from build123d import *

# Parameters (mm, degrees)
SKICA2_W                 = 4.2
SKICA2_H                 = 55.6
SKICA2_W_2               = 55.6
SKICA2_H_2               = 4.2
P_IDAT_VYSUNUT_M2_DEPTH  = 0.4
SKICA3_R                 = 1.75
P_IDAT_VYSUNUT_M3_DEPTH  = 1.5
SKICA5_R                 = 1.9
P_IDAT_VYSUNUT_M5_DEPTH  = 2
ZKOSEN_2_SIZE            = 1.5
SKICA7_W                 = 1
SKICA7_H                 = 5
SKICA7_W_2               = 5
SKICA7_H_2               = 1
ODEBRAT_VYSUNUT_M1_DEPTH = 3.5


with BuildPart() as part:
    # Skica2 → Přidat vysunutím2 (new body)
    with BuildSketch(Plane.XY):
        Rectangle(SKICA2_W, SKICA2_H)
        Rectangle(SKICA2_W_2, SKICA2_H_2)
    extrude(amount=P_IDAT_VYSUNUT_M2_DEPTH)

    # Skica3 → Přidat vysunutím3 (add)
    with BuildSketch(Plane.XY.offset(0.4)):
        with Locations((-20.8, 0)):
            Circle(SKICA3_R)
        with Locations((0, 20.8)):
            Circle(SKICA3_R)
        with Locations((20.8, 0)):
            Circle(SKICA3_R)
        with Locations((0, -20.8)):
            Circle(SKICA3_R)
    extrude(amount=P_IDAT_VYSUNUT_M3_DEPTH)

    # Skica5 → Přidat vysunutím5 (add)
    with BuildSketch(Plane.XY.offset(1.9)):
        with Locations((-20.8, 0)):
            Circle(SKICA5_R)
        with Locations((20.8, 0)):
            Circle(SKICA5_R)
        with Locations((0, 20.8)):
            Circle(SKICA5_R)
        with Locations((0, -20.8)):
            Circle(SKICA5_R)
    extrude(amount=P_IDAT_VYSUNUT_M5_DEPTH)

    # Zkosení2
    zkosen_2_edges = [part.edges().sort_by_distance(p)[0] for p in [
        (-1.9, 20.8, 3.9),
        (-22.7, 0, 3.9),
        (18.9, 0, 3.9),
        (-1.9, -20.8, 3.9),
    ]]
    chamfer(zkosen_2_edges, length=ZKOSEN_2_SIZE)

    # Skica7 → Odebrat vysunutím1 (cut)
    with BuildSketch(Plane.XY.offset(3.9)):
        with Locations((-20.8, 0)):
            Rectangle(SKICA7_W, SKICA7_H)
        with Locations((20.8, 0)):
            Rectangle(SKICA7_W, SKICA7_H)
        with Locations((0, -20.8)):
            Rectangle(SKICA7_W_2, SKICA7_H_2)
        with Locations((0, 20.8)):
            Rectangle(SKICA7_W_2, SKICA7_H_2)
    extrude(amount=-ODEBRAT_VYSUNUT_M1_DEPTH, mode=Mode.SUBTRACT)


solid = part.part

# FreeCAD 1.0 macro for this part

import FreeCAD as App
import Part
import Sketcher

V = App.Vector


def edges_at(feature, points):
    """Names of the edges that pass closest to the given points."""
    edges = feature.Shape.Edges
    near = lambda p: min(range(len(edges)), key=lambda i: edges[i].distToShape(Part.Vertex(*p))[0])
    return sorted({f"Edge{near(p) + 1}" for p in points})

doc = App.newDocument("Part")
body = doc.addObject("PartDesign::Body", "Body")

sketch1 = body.newObject("Sketcher::SketchObject", "Sketch")
sketch1.AttachmentSupport = (doc.getObject("XY_Plane"), [""])
sketch1.MapMode = "FlatFace"
sketch1.addGeometry(Part.LineSegment(V(-2.1, -2.1, 0), V(-2.1, -27.8, 0)), False)
sketch1.addGeometry(Part.LineSegment(V(-2.1, -27.8, 0), V(2.1, -27.8, 0)), False)
sketch1.addGeometry(Part.LineSegment(V(2.1, -27.8, 0), V(2.1, -2.1, 0)), False)
sketch1.addGeometry(Part.LineSegment(V(2.1, -2.1, 0), V(27.8, -2.1, 0)), False)
sketch1.addGeometry(Part.LineSegment(V(27.8, -2.1, 0), V(27.8, 2.1, 0)), False)
sketch1.addGeometry(Part.LineSegment(V(27.8, 2.1, 0), V(2.1, 2.1, 0)), False)
sketch1.addGeometry(Part.LineSegment(V(2.1, 2.1, 0), V(2.1, 27.8, 0)), False)
sketch1.addGeometry(Part.LineSegment(V(2.1, 27.8, 0), V(-2.1, 27.8, 0)), False)
sketch1.addGeometry(Part.LineSegment(V(-2.1, 27.8, 0), V(-2.1, 2.1, 0)), False)
sketch1.addGeometry(Part.LineSegment(V(-2.1, 2.1, 0), V(-27.8, 2.1, 0)), False)
sketch1.addGeometry(Part.LineSegment(V(-27.8, 2.1, 0), V(-27.8, -2.1, 0)), False)
sketch1.addGeometry(Part.LineSegment(V(-27.8, -2.1, 0), V(-2.1, -2.1, 0)), False)
sketch1.addConstraint(Sketcher.Constraint("Coincident", 0, 2, 1, 1))
sketch1.addConstraint(Sketcher.Constraint("Coincident", 1, 2, 2, 1))
sketch1.addConstraint(Sketcher.Constraint("Coincident", 2, 2, 3, 1))
sketch1.addConstraint(Sketcher.Constraint("Coincident", 3, 2, 4, 1))
sketch1.addConstraint(Sketcher.Constraint("Coincident", 4, 2, 5, 1))
sketch1.addConstraint(Sketcher.Constraint("Coincident", 5, 2, 6, 1))
sketch1.addConstraint(Sketcher.Constraint("Coincident", 6, 2, 7, 1))
sketch1.addConstraint(Sketcher.Constraint("Coincident", 7, 2, 8, 1))
sketch1.addConstraint(Sketcher.Constraint("Coincident", 8, 2, 9, 1))
sketch1.addConstraint(Sketcher.Constraint("Coincident", 9, 2, 10, 1))
sketch1.addConstraint(Sketcher.Constraint("Coincident", 10, 2, 11, 1))
sketch1.addConstraint(Sketcher.Constraint("Coincident", 11, 2, 0, 1))
sketch1.addConstraint(Sketcher.Constraint("Vertical", 0))
sketch1.addConstraint(Sketcher.Constraint("Horizontal", 1))
sketch1.addConstraint(Sketcher.Constraint("Vertical", 2))
sketch1.addConstraint(Sketcher.Constraint("Horizontal", 3))
sketch1.addConstraint(Sketcher.Constraint("Vertical", 4))
sketch1.addConstraint(Sketcher.Constraint("Horizontal", 5))
sketch1.addConstraint(Sketcher.Constraint("Vertical", 6))
sketch1.addConstraint(Sketcher.Constraint("Horizontal", 7))
sketch1.addConstraint(Sketcher.Constraint("Vertical", 8))
sketch1.addConstraint(Sketcher.Constraint("Horizontal", 9))
sketch1.addConstraint(Sketcher.Constraint("Vertical", 10))
sketch1.addConstraint(Sketcher.Constraint("Horizontal", 11))
sketch1.addConstraint(Sketcher.Constraint("Symmetric", 0, 2, 6, 2, -1, 1))
sketch1.addConstraint(Sketcher.Constraint("Symmetric", 2, 2, 8, 2, -1, 1))
sketch1.addConstraint(Sketcher.Constraint("Symmetric", 4, 2, 10, 2, -1, 1))
sketch1.addConstraint(Sketcher.Constraint("Symmetric", 5, 2, 8, 2, -2))
sketch1.addConstraint(Sketcher.Constraint("Equal", 11, 0))
sketch1.addConstraint(Sketcher.Constraint("Equal", 7, 4))
sketch1.addConstraint(Sketcher.Constraint("DistanceX", 1, 1, 1, 2, 4.2))
sketch1.addConstraint(Sketcher.Constraint("DistanceX", 3, 1, 3, 2, 25.7))
pad1 = body.newObject("PartDesign::Pad", "Pad")
pad1.Profile = sketch1
pad1.Length = 0.4

sketch2 = body.newObject("Sketcher::SketchObject", "Sketch001")
sketch2.AttachmentSupport = (doc.getObject("XY_Plane"), [""])
sketch2.MapMode = "FlatFace"
sketch2.AttachmentOffset = App.Placement(V(0, 0, 0.4), App.Rotation())
sketch2.addGeometry(Part.Circle(V(-20.8, 0, 0), V(0, 0, 1), 1.8), False)
sketch2.addGeometry(Part.Circle(V(0, 20.8, 0), V(0, 0, 1), 1.8), False)
sketch2.addGeometry(Part.Circle(V(20.8, 0, 0), V(0, 0, 1), 1.8), False)
sketch2.addGeometry(Part.Circle(V(0, -20.8, 0), V(0, 0, 1), 1.8), False)
sketch2.addConstraint(Sketcher.Constraint("Equal", 0, 1))
sketch2.addConstraint(Sketcher.Constraint("Equal", 1, 2))
sketch2.addConstraint(Sketcher.Constraint("Equal", 2, 3))
sketch2.addConstraint(Sketcher.Constraint("Symmetric", 0, 3, 2, 3, -1, 1))
sketch2.addConstraint(Sketcher.Constraint("Symmetric", 1, 3, 3, 3, -1, 1))
sketch2.addConstraint(Sketcher.Constraint("PointOnObject", 0, 3, -1))
sketch2.addConstraint(Sketcher.Constraint("PointOnObject", 1, 3, -2))
sketch2.addConstraint(Sketcher.Constraint("Diameter", 0, 3.5))
sketch2.addConstraint(Sketcher.Constraint("DistanceX", 0, 3, -1, 1, 20.8))
sketch2.addConstraint(Sketcher.Constraint("DistanceY", -1, 1, 1, 3, 20.8))
pad2 = body.newObject("PartDesign::Pad", "Pad001")
pad2.Profile = sketch2
pad2.Length = 1.5

sketch3 = body.newObject("Sketcher::SketchObject", "Sketch002")
sketch3.AttachmentSupport = (doc.getObject("XY_Plane"), [""])
sketch3.MapMode = "FlatFace"
sketch3.AttachmentOffset = App.Placement(V(0, 0, 1.9), App.Rotation())
sketch3.addGeometry(Part.Circle(V(-20.8, 0, 0), V(0, 0, 1), 1.9), False)
sketch3.addGeometry(Part.Circle(V(20.8, 0, 0), V(0, 0, 1), 1.9), False)
sketch3.addGeometry(Part.Circle(V(0, 20.8, 0), V(0, 0, 1), 1.9), False)
sketch3.addGeometry(Part.Circle(V(0, -20.8, 0), V(0, 0, 1), 1.9), False)
sketch3.addConstraint(Sketcher.Constraint("Equal", 0, 1))
sketch3.addConstraint(Sketcher.Constraint("Equal", 1, 2))
sketch3.addConstraint(Sketcher.Constraint("Equal", 2, 3))
sketch3.addConstraint(Sketcher.Constraint("Symmetric", 0, 3, 1, 3, -1, 1))
sketch3.addConstraint(Sketcher.Constraint("Symmetric", 2, 3, 3, 3, -1, 1))
sketch3.addConstraint(Sketcher.Constraint("PointOnObject", 0, 3, -1))
sketch3.addConstraint(Sketcher.Constraint("PointOnObject", 2, 3, -2))
sketch3.addConstraint(Sketcher.Constraint("Diameter", 0, 3.8))
sketch3.addConstraint(Sketcher.Constraint("DistanceX", 0, 3, -1, 1, 20.8))
sketch3.addConstraint(Sketcher.Constraint("DistanceY", -1, 1, 2, 3, 20.8))
pad3 = body.newObject("PartDesign::Pad", "Pad002")
pad3.Profile = sketch3
pad3.Length = 2
doc.recompute()

chamfer = body.newObject("PartDesign::Chamfer", "Chamfer")
chamfer.Base = (pad3, edges_at(pad3, [
    (-1.9, 20.8, 3.9),
    (-22.7, 0, 3.9),
    (18.9, 0, 3.9),
    (-1.9, -20.8, 3.9),
]))
chamfer.Size = 1.5

sketch4 = body.newObject("Sketcher::SketchObject", "Sketch003")
sketch4.AttachmentSupport = (doc.getObject("XY_Plane"), [""])
sketch4.MapMode = "FlatFace"
sketch4.AttachmentOffset = App.Placement(V(0, 0, 3.9), App.Rotation())
sketch4.addGeometry(Part.LineSegment(V(-21.3, 2.5, 0), V(-21.3, -2.5, 0)), False)
sketch4.addGeometry(Part.LineSegment(V(-21.3, -2.5, 0), V(-20.3, -2.5, 0)), False)
sketch4.addGeometry(Part.LineSegment(V(-20.3, -2.5, 0), V(-20.3, 2.5, 0)), False)
sketch4.addGeometry(Part.LineSegment(V(-20.3, 2.5, 0), V(-21.3, 2.5, 0)), False)
sketch4.addGeometry(Part.LineSegment(V(20.3, 2.5, 0), V(20.3, -2.5, 0)), False)
sketch4.addGeometry(Part.LineSegment(V(20.3, -2.5, 0), V(21.3, -2.5, 0)), False)
sketch4.addGeometry(Part.LineSegment(V(21.3, -2.5, 0), V(21.3, 2.5, 0)), False)
sketch4.addGeometry(Part.LineSegment(V(21.3, 2.5, 0), V(20.3, 2.5, 0)), False)
sketch4.addGeometry(Part.LineSegment(V(-2.5, -20.3, 0), V(-2.5, -21.3, 0)), False)
sketch4.addGeometry(Part.LineSegment(V(-2.5, -21.3, 0), V(2.5, -21.3, 0)), False)
sketch4.addGeometry(Part.LineSegment(V(2.5, -21.3, 0), V(2.5, -20.3, 0)), False)
sketch4.addGeometry(Part.LineSegment(V(2.5, -20.3, 0), V(-2.5, -20.3, 0)), False)
sketch4.addGeometry(Part.LineSegment(V(-2.5, 21.3, 0), V(-2.5, 20.3, 0)), False)
sketch4.addGeometry(Part.LineSegment(V(-2.5, 20.3, 0), V(2.5, 20.3, 0)), False)
sketch4.addGeometry(Part.LineSegment(V(2.5, 20.3, 0), V(2.5, 21.3, 0)), False)
sketch4.addGeometry(Part.LineSegment(V(2.5, 21.3, 0), V(-2.5, 21.3, 0)), False)
sketch4.addConstraint(Sketcher.Constraint("Coincident", 0, 2, 1, 1))
sketch4.addConstraint(Sketcher.Constraint("Coincident", 1, 2, 2, 1))
sketch4.addConstraint(Sketcher.Constraint("Coincident", 2, 2, 3, 1))
sketch4.addConstraint(Sketcher.Constraint("Coincident", 3, 2, 0, 1))
sketch4.addConstraint(Sketcher.Constraint("Coincident", 4, 2, 5, 1))
sketch4.addConstraint(Sketcher.Constraint("Coincident", 5, 2, 6, 1))
sketch4.addConstraint(Sketcher.Constraint("Coincident", 6, 2, 7, 1))
sketch4.addConstraint(Sketcher.Constraint("Coincident", 7, 2, 4, 1))
sketch4.addConstraint(Sketcher.Constraint("Coincident", 8, 2, 9, 1))
sketch4.addConstraint(Sketcher.Constraint("Coincident", 9, 2, 10, 1))
sketch4.addConstraint(Sketcher.Constraint("Coincident", 10, 2, 11, 1))
sketch4.addConstraint(Sketcher.Constraint("Coincident", 11, 2, 8, 1))
sketch4.addConstraint(Sketcher.Constraint("Coincident", 12, 2, 13, 1))
sketch4.addConstraint(Sketcher.Constraint("Coincident", 13, 2, 14, 1))
sketch4.addConstraint(Sketcher.Constraint("Coincident", 14, 2, 15, 1))
sketch4.addConstraint(Sketcher.Constraint("Coincident", 15, 2, 12, 1))
sketch4.addConstraint(Sketcher.Constraint("Vertical", 0))
sketch4.addConstraint(Sketcher.Constraint("Horizontal", 1))
sketch4.addConstraint(Sketcher.Constraint("Vertical", 2))
sketch4.addConstraint(Sketcher.Constraint("Horizontal", 3))
sketch4.addConstraint(Sketcher.Constraint("Vertical", 4))
sketch4.addConstraint(Sketcher.Constraint("Horizontal", 5))
sketch4.addConstraint(Sketcher.Constraint("Vertical", 6))
sketch4.addConstraint(Sketcher.Constraint("Horizontal", 7))
sketch4.addConstraint(Sketcher.Constraint("Vertical", 8))
sketch4.addConstraint(Sketcher.Constraint("Horizontal", 9))
sketch4.addConstraint(Sketcher.Constraint("Vertical", 10))
sketch4.addConstraint(Sketcher.Constraint("Horizontal", 11))
sketch4.addConstraint(Sketcher.Constraint("Vertical", 12))
sketch4.addConstraint(Sketcher.Constraint("Horizontal", 13))
sketch4.addConstraint(Sketcher.Constraint("Vertical", 14))
sketch4.addConstraint(Sketcher.Constraint("Horizontal", 15))
sketch4.addConstraint(Sketcher.Constraint("Symmetric", 2, 2, 4, 2, -1, 1))
sketch4.addConstraint(Sketcher.Constraint("Symmetric", 0, 2, 6, 2, -1, 1))
sketch4.addConstraint(Sketcher.Constraint("Symmetric", 10, 2, 12, 2, -1, 1))
sketch4.addConstraint(Sketcher.Constraint("Symmetric", 8, 2, 14, 2, -1, 1))
sketch4.addConstraint(Sketcher.Constraint("Horizontal", 1, 2, 4, 2))
sketch4.addConstraint(Sketcher.Constraint("Vertical", 11, 2, 12, 2))
sketch4.addConstraint(Sketcher.Constraint("Equal", 15, 0))
sketch4.addConstraint(Sketcher.Constraint("Equal", 7, 8))
sketch4.addConstraint(Sketcher.Constraint("DistanceX", 1, 1, 1, 2, 1.0))
sketch4.addConstraint(Sketcher.Constraint("DistanceX", 9, 1, 9, 2, 5.0))
sketch4.addConstraint(Sketcher.Constraint("DistanceX", 0, 2, -1, 1, 21.3))
sketch4.addConstraint(Sketcher.Constraint("DistanceY", 8, 2, -1, 1, 21.3))
pocket1 = body.newObject("PartDesign::Pocket", "Pocket")
pocket1.Profile = sketch4
pocket1.Length = 3.5

doc.recompute()
